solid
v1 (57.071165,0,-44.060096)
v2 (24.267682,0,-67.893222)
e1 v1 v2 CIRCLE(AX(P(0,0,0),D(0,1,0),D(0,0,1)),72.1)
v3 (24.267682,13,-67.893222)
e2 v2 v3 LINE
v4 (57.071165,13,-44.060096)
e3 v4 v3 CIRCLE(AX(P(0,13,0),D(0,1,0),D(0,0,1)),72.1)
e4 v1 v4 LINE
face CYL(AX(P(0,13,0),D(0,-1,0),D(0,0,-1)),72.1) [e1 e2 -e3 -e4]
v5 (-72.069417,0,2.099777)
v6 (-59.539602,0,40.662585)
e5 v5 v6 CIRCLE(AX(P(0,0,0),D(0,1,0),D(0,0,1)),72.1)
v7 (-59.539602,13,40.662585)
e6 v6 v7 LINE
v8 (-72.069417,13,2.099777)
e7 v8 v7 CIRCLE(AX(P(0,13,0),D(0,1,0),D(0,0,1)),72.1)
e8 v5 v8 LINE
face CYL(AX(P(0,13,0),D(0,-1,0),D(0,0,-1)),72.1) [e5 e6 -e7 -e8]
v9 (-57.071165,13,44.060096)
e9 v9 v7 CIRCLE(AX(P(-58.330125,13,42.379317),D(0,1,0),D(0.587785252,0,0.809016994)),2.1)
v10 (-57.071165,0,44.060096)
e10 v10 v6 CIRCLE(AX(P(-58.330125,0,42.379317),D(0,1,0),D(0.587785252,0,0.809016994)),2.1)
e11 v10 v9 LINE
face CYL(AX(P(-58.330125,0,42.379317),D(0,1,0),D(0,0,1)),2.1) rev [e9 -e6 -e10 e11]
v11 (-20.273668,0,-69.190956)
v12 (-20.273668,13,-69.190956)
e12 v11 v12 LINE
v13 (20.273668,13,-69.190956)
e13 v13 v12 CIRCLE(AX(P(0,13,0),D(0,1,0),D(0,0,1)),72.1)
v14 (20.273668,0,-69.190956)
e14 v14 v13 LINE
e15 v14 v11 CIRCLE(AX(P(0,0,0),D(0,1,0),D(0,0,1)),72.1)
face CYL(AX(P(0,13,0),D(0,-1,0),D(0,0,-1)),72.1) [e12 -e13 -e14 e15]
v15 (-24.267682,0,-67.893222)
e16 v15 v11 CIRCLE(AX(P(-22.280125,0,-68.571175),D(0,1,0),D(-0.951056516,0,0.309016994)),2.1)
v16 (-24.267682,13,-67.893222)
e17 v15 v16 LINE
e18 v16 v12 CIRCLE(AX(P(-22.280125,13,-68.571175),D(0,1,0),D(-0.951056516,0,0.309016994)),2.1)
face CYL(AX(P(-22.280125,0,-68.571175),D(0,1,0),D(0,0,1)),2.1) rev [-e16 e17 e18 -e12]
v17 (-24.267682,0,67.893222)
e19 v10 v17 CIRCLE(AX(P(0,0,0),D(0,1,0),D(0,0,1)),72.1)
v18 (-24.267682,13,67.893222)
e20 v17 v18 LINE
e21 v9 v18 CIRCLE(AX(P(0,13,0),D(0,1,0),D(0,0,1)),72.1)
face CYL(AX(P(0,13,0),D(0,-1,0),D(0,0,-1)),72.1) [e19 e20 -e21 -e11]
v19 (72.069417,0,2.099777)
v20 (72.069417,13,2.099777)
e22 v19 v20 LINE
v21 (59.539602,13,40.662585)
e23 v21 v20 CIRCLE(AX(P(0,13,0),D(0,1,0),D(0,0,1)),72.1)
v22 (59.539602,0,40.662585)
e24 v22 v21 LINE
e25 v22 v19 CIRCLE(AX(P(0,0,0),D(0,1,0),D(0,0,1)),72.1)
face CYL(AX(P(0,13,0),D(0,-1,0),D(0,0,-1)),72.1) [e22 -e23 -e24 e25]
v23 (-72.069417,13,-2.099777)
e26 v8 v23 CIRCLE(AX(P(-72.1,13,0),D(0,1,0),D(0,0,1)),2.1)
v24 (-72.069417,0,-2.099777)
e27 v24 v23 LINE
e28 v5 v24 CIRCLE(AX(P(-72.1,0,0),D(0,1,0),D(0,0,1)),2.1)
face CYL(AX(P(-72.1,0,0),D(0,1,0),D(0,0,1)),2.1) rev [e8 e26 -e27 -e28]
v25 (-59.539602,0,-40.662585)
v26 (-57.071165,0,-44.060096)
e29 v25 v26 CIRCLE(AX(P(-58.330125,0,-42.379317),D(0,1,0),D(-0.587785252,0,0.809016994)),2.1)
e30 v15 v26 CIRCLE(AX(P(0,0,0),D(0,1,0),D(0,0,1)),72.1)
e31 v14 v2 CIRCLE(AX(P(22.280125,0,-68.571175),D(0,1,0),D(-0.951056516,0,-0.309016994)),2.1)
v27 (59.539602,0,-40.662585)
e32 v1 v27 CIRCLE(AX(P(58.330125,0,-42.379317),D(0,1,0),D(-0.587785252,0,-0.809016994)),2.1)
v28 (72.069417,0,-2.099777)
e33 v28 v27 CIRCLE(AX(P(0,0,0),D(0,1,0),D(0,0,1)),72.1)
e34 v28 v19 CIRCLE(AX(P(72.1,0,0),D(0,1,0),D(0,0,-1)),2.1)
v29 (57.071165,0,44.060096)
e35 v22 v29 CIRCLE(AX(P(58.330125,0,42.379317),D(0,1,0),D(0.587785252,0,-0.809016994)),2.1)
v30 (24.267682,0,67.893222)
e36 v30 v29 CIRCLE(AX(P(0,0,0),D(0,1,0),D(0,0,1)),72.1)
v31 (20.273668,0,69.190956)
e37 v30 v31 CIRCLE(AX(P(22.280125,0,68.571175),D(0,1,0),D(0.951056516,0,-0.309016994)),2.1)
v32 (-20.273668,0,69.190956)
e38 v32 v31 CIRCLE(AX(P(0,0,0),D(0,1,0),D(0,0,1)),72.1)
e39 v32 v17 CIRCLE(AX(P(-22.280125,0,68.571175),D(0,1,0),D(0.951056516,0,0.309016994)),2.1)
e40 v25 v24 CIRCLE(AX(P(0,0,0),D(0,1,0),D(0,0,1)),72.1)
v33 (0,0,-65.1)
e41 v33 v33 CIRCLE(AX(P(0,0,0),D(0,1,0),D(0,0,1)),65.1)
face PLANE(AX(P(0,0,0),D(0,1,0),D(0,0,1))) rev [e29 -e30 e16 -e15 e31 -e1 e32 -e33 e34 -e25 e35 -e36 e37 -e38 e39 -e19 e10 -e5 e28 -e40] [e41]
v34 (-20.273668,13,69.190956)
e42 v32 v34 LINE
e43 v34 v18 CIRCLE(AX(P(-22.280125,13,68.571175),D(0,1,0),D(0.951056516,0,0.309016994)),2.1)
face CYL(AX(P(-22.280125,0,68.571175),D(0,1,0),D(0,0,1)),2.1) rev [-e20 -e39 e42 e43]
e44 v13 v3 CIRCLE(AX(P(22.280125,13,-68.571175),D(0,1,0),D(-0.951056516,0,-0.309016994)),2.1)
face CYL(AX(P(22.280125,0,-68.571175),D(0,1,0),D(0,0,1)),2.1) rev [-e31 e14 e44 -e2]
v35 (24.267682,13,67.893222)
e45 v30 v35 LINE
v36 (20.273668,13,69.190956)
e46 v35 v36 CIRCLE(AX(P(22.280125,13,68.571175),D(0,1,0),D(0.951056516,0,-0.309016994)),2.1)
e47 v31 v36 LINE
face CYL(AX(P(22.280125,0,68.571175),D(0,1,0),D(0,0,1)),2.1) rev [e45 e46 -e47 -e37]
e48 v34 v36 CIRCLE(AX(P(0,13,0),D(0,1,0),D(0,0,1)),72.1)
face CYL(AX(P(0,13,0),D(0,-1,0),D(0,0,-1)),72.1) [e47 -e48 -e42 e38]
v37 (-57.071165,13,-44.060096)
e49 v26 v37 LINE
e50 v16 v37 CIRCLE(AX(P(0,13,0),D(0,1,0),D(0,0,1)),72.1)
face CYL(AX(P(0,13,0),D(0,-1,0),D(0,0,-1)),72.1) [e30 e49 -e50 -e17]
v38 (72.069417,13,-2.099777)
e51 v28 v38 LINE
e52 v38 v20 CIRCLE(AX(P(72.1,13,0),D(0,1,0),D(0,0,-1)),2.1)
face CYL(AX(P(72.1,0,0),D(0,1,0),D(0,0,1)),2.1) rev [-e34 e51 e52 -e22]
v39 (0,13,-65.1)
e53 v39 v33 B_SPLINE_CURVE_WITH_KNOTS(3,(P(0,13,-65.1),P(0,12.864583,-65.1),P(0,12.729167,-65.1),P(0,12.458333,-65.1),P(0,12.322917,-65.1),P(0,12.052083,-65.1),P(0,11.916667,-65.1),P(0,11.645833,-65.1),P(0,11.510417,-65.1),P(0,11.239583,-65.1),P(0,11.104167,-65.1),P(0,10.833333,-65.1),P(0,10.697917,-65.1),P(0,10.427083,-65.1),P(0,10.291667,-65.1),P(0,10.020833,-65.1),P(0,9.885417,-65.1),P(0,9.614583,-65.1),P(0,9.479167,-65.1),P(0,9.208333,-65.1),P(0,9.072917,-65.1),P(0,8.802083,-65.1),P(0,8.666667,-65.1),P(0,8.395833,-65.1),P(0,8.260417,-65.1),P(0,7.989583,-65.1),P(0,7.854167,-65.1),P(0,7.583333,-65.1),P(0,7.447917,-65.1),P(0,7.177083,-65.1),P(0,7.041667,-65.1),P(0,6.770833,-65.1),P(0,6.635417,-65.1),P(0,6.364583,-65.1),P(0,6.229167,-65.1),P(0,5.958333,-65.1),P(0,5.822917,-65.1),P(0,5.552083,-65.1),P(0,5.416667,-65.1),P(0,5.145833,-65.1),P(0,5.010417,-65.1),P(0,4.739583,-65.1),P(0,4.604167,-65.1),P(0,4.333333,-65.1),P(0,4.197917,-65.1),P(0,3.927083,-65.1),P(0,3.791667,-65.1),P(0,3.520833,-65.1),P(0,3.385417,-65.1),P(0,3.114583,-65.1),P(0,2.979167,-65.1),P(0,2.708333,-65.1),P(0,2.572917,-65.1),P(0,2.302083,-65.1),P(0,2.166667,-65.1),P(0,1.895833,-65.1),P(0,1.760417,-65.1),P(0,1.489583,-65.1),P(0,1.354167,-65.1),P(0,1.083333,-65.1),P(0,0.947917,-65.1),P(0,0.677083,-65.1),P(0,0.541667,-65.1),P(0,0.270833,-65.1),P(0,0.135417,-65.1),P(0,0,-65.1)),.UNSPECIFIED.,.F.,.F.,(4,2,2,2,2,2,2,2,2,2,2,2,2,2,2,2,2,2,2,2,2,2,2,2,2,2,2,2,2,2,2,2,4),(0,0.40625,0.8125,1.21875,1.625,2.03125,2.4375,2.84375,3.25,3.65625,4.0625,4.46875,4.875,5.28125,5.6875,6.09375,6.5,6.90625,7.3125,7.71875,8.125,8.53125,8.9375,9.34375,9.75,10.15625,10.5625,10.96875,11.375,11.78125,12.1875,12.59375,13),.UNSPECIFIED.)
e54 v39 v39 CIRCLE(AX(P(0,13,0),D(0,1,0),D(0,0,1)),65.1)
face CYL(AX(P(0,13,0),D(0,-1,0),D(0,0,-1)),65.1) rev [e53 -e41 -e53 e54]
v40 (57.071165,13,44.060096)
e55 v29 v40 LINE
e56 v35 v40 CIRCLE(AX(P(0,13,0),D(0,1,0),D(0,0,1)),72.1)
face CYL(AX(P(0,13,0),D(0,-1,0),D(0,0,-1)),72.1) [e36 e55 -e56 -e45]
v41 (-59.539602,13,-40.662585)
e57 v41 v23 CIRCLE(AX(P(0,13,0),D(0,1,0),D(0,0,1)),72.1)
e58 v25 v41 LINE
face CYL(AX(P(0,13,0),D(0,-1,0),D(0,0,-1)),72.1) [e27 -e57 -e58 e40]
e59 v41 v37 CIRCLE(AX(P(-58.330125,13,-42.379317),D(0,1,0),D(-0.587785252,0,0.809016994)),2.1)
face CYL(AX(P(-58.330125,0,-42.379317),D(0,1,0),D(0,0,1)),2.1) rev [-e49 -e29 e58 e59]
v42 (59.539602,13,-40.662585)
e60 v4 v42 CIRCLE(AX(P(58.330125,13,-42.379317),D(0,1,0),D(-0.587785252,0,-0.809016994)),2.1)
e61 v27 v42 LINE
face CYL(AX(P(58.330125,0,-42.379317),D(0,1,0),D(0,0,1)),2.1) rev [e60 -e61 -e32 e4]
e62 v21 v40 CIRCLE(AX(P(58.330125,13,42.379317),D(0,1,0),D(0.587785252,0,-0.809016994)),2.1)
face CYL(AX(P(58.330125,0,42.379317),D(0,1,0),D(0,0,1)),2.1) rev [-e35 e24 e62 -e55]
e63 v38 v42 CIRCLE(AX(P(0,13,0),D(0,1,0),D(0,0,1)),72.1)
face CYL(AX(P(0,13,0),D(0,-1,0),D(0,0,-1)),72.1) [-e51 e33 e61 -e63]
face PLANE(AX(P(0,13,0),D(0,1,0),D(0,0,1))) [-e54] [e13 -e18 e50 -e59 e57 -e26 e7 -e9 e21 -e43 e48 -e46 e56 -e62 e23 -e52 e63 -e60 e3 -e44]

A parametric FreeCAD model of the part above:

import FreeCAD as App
import Part
import Sketcher
Q = App.Units.Quantity

doc = App.newDocument("Part")
params = doc.addObject("Spreadsheet::Sheet", "Params")
for row, (alias, value) in enumerate([
    ("sketch1_diameter", "144.2 mm"),
    ("sketch1_diameter2", "130.2 mm"),
    ("pad1_length", "13 mm"),
    ("sketch2_diameter", "4.2 mm"),
    ("pocket1_length", "13 mm"),
], start=1):
    params.set(f"A{row}", alias)
    params.set(f"B{row}", "=" + value)
    params.setAlias(f"B{row}", alias)

body = doc.addObject("PartDesign::Body", "Body")

sketch1 = body.newObject("Sketcher::SketchObject", "Sketch")
sketch1.AttachmentSupport = (doc.getObject("XZ_Plane"), [""])
sketch1.MapMode = "FlatFace"
sketch1.addGeometry([
    Part.Circle(App.Vector(0, 0, 0), App.Vector(0, 0, 1), 72.1),
    Part.Circle(App.Vector(0, 0, 0), App.Vector(0, 0, 1), 65.1),
], False)
sketch1.addConstraint([
    Sketcher.Constraint("Coincident", 0, 3, -1, 1),
    Sketcher.Constraint("Coincident", 1, 3, -1, 1),
    Sketcher.Constraint("Diameter", 0, Q("144.2 mm")),
    Sketcher.Constraint("Diameter", 1, Q("130.2 mm")),
])
sketch1.setExpression("Constraints[2]", "Params.sketch1_diameter")
sketch1.setExpression("Constraints[3]", "Params.sketch1_diameter2")
pad1 = body.newObject("PartDesign::Pad", "Pad")
pad1.Profile = sketch1
pad1.setExpression("Length", "Params.pad1_length")
pad1.Reversed = True

sketch2 = body.newObject("Sketcher::SketchObject", "Sketch001")
sketch2.AttachmentSupport = (doc.getObject("XZ_Plane"), [""])
sketch2.MapMode = "FlatFace"
sketch2.AttachmentOffset = App.Placement(App.Vector(0, 0, -13), App.Rotation())
sketch2.addGeometry(Part.Circle(App.Vector(-72.1, 0, 0), App.Vector(0, 0, 1), 2.1), False)
sketch2.addConstraint([
    Sketcher.Constraint("PointOnObject", 0, 3, -1),
    Sketcher.Constraint("Diameter", 0, Q("4.2 mm")),
    Sketcher.Constraint("DistanceX", 0, 3, -1, 1, Q("72.1 mm")),
])
sketch2.setExpression("Constraints[1]", "Params.sketch2_diameter")
pocket1 = body.newObject("PartDesign::Pocket", "Pocket")
pocket1.Profile = sketch2
pocket1.setExpression("Length", "Params.pocket1_length")
pocket1.Reversed = True
doc.recompute()

polarpattern = body.newObject("PartDesign::PolarPattern", "PolarPattern")
polarpattern.Originals = [pocket1]
polarpattern.Axis = (doc.getObject("Y_Axis"), [""])
polarpattern.Angle = 360
polarpattern.Occurrences = 10
body.Tip = polarpattern

doc.recompute()
